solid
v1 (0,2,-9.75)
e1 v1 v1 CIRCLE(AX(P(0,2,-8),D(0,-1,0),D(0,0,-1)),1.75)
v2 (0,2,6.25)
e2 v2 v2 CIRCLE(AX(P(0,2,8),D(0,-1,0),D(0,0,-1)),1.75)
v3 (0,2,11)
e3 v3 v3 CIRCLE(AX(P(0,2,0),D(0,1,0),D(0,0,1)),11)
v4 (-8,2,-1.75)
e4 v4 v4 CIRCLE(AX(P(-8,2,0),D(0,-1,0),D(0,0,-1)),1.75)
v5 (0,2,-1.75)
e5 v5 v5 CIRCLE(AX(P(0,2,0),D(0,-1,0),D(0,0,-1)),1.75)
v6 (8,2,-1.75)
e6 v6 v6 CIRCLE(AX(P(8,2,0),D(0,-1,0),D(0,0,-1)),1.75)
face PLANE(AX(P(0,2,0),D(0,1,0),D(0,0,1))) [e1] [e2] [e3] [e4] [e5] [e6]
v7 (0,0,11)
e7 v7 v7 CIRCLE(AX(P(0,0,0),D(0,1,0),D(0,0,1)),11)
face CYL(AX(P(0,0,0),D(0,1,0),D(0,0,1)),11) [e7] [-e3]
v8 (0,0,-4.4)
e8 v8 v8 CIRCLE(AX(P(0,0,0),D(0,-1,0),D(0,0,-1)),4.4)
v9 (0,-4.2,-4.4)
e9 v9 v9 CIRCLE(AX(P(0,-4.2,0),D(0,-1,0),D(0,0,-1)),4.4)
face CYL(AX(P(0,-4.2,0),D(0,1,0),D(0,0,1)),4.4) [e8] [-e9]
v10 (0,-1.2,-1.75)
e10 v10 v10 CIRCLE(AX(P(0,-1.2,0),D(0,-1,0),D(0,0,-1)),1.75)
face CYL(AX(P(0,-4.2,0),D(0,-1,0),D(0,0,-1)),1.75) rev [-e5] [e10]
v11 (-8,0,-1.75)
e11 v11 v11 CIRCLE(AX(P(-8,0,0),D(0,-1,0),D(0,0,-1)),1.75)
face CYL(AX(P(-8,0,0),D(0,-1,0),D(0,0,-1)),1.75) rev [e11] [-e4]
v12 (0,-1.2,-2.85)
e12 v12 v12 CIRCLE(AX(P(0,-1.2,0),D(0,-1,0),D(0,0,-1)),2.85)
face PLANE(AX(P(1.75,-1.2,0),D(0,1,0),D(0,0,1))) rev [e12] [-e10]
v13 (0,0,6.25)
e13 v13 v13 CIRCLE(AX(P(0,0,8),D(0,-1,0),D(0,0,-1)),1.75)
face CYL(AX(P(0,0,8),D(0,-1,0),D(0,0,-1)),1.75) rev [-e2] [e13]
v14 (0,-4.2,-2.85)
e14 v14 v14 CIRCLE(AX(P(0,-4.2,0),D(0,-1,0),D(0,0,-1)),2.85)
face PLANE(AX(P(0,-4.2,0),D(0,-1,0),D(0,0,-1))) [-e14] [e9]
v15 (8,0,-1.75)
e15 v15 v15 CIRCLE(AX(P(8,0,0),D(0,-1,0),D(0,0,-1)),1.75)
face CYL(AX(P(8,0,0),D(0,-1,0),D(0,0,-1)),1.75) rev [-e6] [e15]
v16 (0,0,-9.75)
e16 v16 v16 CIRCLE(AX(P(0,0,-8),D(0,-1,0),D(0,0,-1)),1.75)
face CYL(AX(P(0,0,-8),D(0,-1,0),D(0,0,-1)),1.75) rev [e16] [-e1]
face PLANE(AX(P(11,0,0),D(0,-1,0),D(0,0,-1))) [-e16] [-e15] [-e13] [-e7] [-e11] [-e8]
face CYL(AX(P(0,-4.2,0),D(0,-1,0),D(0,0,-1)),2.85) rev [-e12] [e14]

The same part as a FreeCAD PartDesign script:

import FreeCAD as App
import Part
import Sketcher
from FreeCAD import Vector

doc = App.newDocument("Part")
body = doc.addObject("PartDesign::Body", "Body")

# Sketch on XY plane
sketch1 = body.newObject("Sketcher::SketchObject", "Sketch")
sketch1.AttachmentSupport = (doc.getObject("XY_Plane"), [""])
sketch1.MapMode = "FlatFace"
sketch1.addGeometry([
    Part.LineSegment(Vector(11, 2, 0), Vector(11, 0, 0)),
    Part.LineSegment(Vector(11, 0, 0), Vector(0, 0, 0)),
    Part.LineSegment(Vector(0, 0, 0), Vector(0, 2, 0)),
    Part.LineSegment(Vector(0, 2, 0), Vector(11, 2, 0)),
], False)
sketch1.addConstraint([
    Sketcher.Constraint("Coincident", 0, 2, 1, 1),
    Sketcher.Constraint("Coincident", 1, 2, 2, 1),
    Sketcher.Constraint("Coincident", 2, 2, 3, 1),
    Sketcher.Constraint("Coincident", 3, 2, 0, 1),
    Sketcher.Constraint("Vertical", 0),
    Sketcher.Constraint("Horizontal", 1),
    Sketcher.Constraint("Vertical", 2),
    Sketcher.Constraint("Horizontal", 3),
    Sketcher.Constraint("Coincident", 1, 2, -1, 1),
    Sketcher.Constraint("DistanceX", 1, 2, 1, 1, 11.0),
    Sketcher.Constraint("DistanceY", 0, 2, 0, 1, 2.0),
])
revolution = body.newObject("PartDesign::Revolution", "Revolution")
revolution.Profile = sketch1
revolution.ReferenceAxis = (sketch1, ["V_Axis"])
revolution.Angle = 360

# Sketch on XZ plane
sketch2 = body.newObject("Sketcher::SketchObject", "Sketch001")
sketch2.AttachmentSupport = (doc.getObject("XZ_Plane"), [""])
sketch2.MapMode = "FlatFace"
sketch2.addGeometry(Part.Circle(Vector(0, 0, 0), Vector(0, 0, 1), 4.4), False)
sketch2.addConstraint([
    Sketcher.Constraint("Coincident", 0, 3, -1, 1),
    Sketcher.Constraint("Diameter", 0, 8.8),
])
pad1 = body.newObject("PartDesign::Pad", "Pad")
pad1.Profile = sketch2
pad1.Length = 4.2

# Sketch on XZ plane
sketch3 = body.newObject("Sketcher::SketchObject", "Sketch002")
sketch3.AttachmentSupport = (doc.getObject("XZ_Plane"), [""])
sketch3.MapMode = "FlatFace"
sketch3.addGeometry([
    Part.Circle(Vector(8, 0, 0), Vector(0, 0, 1), 1.75),
    Part.Circle(Vector(0, 8, 0), Vector(0, 0, 1), 1.75),
    Part.Circle(Vector(-8, 0, 0), Vector(0, 0, 1), 1.75),
    Part.Circle(Vector(0, -8, 0), Vector(0, 0, 1), 1.75),
], False)
sketch3.addConstraint([
    Sketcher.Constraint("Equal", 0, 1),
    Sketcher.Constraint("Equal", 1, 2),
    Sketcher.Constraint("Equal", 2, 3),
    Sketcher.Constraint("Symmetric", 0, 3, 2, 3, -1, 1),
    Sketcher.Constraint("Symmetric", 1, 3, 3, 3, -1, 1),
    Sketcher.Constraint("PointOnObject", 0, 3, -1),
    Sketcher.Constraint("PointOnObject", 1, 3, -2),
    Sketcher.Constraint("Diameter", 0, 3.5),
    Sketcher.Constraint("DistanceX", -1, 1, 0, 3, 8.0),
    Sketcher.Constraint("DistanceY", -1, 1, 1, 3, 8.0),
])
doc.recompute()
hole = body.newObject("PartDesign::Hole", "Hole")
hole.Profile = sketch3
hole.ThreadType = "None"
hole.Diameter = 3.5
hole.DepthType = "Dimension"
hole.Depth = 2
hole.DrillPoint = "Flat"

# Sketch on XZ plane
sketch4 = body.newObject("Sketcher::SketchObject", "Sketch003")
sketch4.AttachmentSupport = (doc.getObject("XZ_Plane"), [""])
sketch4.MapMode = "FlatFace"
sketch4.AttachmentOffset = App.Placement(Vector(0, 0, 4.2), App.Rotation())
sketch4.addGeometry(Part.Circle(Vector(0, 0, 0), Vector(0, 0, 1), 1.75), False)
sketch4.addConstraint([
    Sketcher.Constraint("Coincident", 0, 3, -1, 1),
    Sketcher.Constraint("Diameter", 0, 3.5),
])
doc.recompute()
hole2 = body.newObject("PartDesign::Hole", "Hole001")
hole2.Profile = sketch4
hole2.ThreadType = "None"
hole2.Diameter = 3.5
hole2.DepthType = "Dimension"
hole2.Depth = 6.2
hole2.DrillPoint = "Flat"
hole2.HoleCutType = "Counterbore"
hole2.HoleCutDiameter = 5.7
hole2.HoleCutDepth = 3

doc.recompute()
